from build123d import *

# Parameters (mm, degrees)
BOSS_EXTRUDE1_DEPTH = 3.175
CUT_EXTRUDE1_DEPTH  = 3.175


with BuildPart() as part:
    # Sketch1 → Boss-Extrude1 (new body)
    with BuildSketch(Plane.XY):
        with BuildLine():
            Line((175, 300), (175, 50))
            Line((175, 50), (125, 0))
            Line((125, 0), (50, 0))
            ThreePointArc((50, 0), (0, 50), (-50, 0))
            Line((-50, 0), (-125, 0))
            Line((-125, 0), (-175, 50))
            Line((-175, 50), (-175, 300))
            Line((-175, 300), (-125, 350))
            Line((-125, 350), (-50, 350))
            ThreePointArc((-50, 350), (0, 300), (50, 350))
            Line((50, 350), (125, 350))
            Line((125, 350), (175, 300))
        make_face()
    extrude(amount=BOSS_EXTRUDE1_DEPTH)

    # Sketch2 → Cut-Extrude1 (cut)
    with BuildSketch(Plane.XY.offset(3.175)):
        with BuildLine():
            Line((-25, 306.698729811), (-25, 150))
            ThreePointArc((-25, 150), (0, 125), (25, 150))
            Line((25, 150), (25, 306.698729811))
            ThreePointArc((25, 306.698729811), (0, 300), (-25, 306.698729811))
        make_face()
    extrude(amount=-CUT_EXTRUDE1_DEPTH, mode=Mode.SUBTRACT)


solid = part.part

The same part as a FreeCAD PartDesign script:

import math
import FreeCAD as App
import Part
import Sketcher
from FreeCAD import Vector

doc = App.newDocument("Part")
body = doc.addObject("PartDesign::Body", "Body")

# Sketch on XY plane
sketch1 = body.newObject("Sketcher::SketchObject", "Sketch")
sketch1.AttachmentSupport = (doc.getObject("XY_Plane"), [""])
sketch1.MapMode = "FlatFace"
sketch1.addGeometry(Part.LineSegment(Vector(175, 50, 0), Vector(175, 300, 0)), False)
sketch1.addGeometry(Part.LineSegment(Vector(175, 300, 0), Vector(125, 350, 0)), False)
sketch1.addGeometry(Part.LineSegment(Vector(125, 350, 0), Vector(50, 350, 0)), False)
sketch1.addGeometry(Part.ArcOfCircle(Part.Circle(Vector(0, 350, 0), Vector(0, 0, 1), 50), math.radians(180), math.radians(360)), False)
sketch1.addGeometry(Part.LineSegment(Vector(-50, 350, 0), Vector(-125, 350, 0)), False)
sketch1.addGeometry(Part.LineSegment(Vector(-125, 350, 0), Vector(-175, 300, 0)), False)
sketch1.addGeometry(Part.LineSegment(Vector(-175, 300, 0), Vector(-175, 50, 0)), False)
sketch1.addGeometry(Part.LineSegment(Vector(-175, 50, 0), Vector(-125, 0, 0)), False)
sketch1.addGeometry(Part.LineSegment(Vector(-125, 0, 0), Vector(-50, 0, 0)), False)
sketch1.addGeometry(Part.ArcOfCircle(Part.Circle(Vector(0, 0, 0), Vector(0, 0, 1), 50), math.radians(0), math.radians(180)), False)
sketch1.addGeometry(Part.LineSegment(Vector(50, 0, 0), Vector(125, 0, 0)), False)
sketch1.addGeometry(Part.LineSegment(Vector(125, 0, 0), Vector(175, 50, 0)), False)
sketch1.addConstraint(Sketcher.Constraint("Coincident", 0, 2, 1, 1))
sketch1.addConstraint(Sketcher.Constraint("Coincident", 1, 2, 2, 1))
sketch1.addConstraint(Sketcher.Constraint("Coincident", 2, 2, 3, 2))
sketch1.addConstraint(Sketcher.Constraint("Coincident", 3, 1, 4, 1))
sketch1.addConstraint(Sketcher.Constraint("Coincident", 4, 2, 5, 1))
sketch1.addConstraint(Sketcher.Constraint("Coincident", 5, 2, 6, 1))
sketch1.addConstraint(Sketcher.Constraint("Coincident", 6, 2, 7, 1))
sketch1.addConstraint(Sketcher.Constraint("Coincident", 7, 2, 8, 1))
sketch1.addConstraint(Sketcher.Constraint("Coincident", 8, 2, 9, 2))
sketch1.addConstraint(Sketcher.Constraint("Coincident", 9, 1, 10, 1))
sketch1.addConstraint(Sketcher.Constraint("Coincident", 10, 2, 11, 1))
sketch1.addConstraint(Sketcher.Constraint("Coincident", 11, 2, 0, 1))
sketch1.addConstraint(Sketcher.Constraint("Vertical", 0))
sketch1.addConstraint(Sketcher.Constraint("Horizontal", 2))
sketch1.addConstraint(Sketcher.Constraint("Horizontal", 4))
sketch1.addConstraint(Sketcher.Constraint("Vertical", 6))
sketch1.addConstraint(Sketcher.Constraint("Horizontal", 8))
sketch1.addConstraint(Sketcher.Constraint("Horizontal", 10))
sketch1.addConstraint(Sketcher.Constraint("Coincident", 9, 3, -1, 1))
sketch1.addConstraint(Sketcher.Constraint("Equal", 3, 9))
sketch1.addConstraint(Sketcher.Constraint("Symmetric", 7, 2, 10, 2, -1, 1))
sketch1.addConstraint(Sketcher.Constraint("Symmetric", 2, 2, 3, 1, -2))
sketch1.addConstraint(Sketcher.Constraint("Symmetric", 0, 2, 5, 2, -2))
sketch1.addConstraint(Sketcher.Constraint("PointOnObject", 7, 2, -1))
sketch1.addConstraint(Sketcher.Constraint("Perpendicular", 1, 5))
sketch1.addConstraint(Sketcher.Constraint("Perpendicular", 5, 7))
sketch1.addConstraint(Sketcher.Constraint("Perpendicular", 7, 11))
sketch1.addConstraint(Sketcher.Constraint("Horizontal", 3, 3, 1, 2))
sketch1.addConstraint(Sketcher.Constraint("Horizontal", 6, 2, 11, 2))
sketch1.addConstraint(Sketcher.Constraint("Vertical", 4, 2, 7, 2))
sketch1.addConstraint(Sketcher.Constraint("Radius", 3, 50.0))
sketch1.addConstraint(Sketcher.Constraint("DistanceX", 2, 2, 2, 1, 75.0))
sketch1.addConstraint(Sketcher.Constraint("DistanceY", 0, 1, 0, 2, 250.0))
sketch1.addConstraint(Sketcher.Constraint("DistanceY", -1, 1, 3, 3, 350.0))
pad1 = body.newObject("PartDesign::Pad", "Pad")
pad1.Profile = sketch1
pad1.Length = 3.175

# Sketch on XY plane
sketch2 = body.newObject("Sketcher::SketchObject", "Sketch001")
sketch2.AttachmentSupport = (doc.getObject("XY_Plane"), [""])
sketch2.MapMode = "FlatFace"
sketch2.AttachmentOffset = App.Placement(Vector(0, 0, 3.175), App.Rotation())
sketch2.addGeometry(Part.LineSegment(Vector(-25, 307, 0), Vector(-25, 150, 0)), False)
sketch2.addGeometry(Part.ArcOfCircle(Part.Circle(Vector(0, 150, 0), Vector(0, 0, 1), 25), math.radians(180), math.radians(360)), False)
sketch2.addGeometry(Part.LineSegment(Vector(25, 150, 0), Vector(25, 307, 0)), False)
sketch2.addGeometry(Part.ArcOfCircle(Part.Circle(Vector(0, 350, 0), Vector(0, 0, 1), 50), math.radians(-120), math.radians(-60)), False)
sketch2.addConstraint(Sketcher.Constraint("Tangent", 0, 2, 1, 1))
sketch2.addConstraint(Sketcher.Constraint("Tangent", 1, 2, 2, 1))
sketch2.addConstraint(Sketcher.Constraint("Coincident", 2, 2, 3, 2))
sketch2.addConstraint(Sketcher.Constraint("Coincident", 3, 1, 0, 1))
sketch2.addConstraint(Sketcher.Constraint("Vertical", 0))
sketch2.addConstraint(Sketcher.Constraint("Vertical", 2))
sketch2.addConstraint(Sketcher.Constraint("Symmetric", 2, 2, 3, 1, -2))
sketch2.addConstraint(Sketcher.Constraint("Radius", 1, 25.0))
sketch2.addConstraint(Sketcher.Constraint("Radius", 3, 50.0))
sketch2.addConstraint(Sketcher.Constraint("DistanceY", -1, 1, 1, 3, 150.0))
sketch2.addConstraint(Sketcher.Constraint("DistanceY", -1, 1, 3, 3, 350.0))
pocket1 = body.newObject("PartDesign::Pocket", "Pocket")
pocket1.Profile = sketch2
pocket1.Length = 3.175

doc.recompute()
